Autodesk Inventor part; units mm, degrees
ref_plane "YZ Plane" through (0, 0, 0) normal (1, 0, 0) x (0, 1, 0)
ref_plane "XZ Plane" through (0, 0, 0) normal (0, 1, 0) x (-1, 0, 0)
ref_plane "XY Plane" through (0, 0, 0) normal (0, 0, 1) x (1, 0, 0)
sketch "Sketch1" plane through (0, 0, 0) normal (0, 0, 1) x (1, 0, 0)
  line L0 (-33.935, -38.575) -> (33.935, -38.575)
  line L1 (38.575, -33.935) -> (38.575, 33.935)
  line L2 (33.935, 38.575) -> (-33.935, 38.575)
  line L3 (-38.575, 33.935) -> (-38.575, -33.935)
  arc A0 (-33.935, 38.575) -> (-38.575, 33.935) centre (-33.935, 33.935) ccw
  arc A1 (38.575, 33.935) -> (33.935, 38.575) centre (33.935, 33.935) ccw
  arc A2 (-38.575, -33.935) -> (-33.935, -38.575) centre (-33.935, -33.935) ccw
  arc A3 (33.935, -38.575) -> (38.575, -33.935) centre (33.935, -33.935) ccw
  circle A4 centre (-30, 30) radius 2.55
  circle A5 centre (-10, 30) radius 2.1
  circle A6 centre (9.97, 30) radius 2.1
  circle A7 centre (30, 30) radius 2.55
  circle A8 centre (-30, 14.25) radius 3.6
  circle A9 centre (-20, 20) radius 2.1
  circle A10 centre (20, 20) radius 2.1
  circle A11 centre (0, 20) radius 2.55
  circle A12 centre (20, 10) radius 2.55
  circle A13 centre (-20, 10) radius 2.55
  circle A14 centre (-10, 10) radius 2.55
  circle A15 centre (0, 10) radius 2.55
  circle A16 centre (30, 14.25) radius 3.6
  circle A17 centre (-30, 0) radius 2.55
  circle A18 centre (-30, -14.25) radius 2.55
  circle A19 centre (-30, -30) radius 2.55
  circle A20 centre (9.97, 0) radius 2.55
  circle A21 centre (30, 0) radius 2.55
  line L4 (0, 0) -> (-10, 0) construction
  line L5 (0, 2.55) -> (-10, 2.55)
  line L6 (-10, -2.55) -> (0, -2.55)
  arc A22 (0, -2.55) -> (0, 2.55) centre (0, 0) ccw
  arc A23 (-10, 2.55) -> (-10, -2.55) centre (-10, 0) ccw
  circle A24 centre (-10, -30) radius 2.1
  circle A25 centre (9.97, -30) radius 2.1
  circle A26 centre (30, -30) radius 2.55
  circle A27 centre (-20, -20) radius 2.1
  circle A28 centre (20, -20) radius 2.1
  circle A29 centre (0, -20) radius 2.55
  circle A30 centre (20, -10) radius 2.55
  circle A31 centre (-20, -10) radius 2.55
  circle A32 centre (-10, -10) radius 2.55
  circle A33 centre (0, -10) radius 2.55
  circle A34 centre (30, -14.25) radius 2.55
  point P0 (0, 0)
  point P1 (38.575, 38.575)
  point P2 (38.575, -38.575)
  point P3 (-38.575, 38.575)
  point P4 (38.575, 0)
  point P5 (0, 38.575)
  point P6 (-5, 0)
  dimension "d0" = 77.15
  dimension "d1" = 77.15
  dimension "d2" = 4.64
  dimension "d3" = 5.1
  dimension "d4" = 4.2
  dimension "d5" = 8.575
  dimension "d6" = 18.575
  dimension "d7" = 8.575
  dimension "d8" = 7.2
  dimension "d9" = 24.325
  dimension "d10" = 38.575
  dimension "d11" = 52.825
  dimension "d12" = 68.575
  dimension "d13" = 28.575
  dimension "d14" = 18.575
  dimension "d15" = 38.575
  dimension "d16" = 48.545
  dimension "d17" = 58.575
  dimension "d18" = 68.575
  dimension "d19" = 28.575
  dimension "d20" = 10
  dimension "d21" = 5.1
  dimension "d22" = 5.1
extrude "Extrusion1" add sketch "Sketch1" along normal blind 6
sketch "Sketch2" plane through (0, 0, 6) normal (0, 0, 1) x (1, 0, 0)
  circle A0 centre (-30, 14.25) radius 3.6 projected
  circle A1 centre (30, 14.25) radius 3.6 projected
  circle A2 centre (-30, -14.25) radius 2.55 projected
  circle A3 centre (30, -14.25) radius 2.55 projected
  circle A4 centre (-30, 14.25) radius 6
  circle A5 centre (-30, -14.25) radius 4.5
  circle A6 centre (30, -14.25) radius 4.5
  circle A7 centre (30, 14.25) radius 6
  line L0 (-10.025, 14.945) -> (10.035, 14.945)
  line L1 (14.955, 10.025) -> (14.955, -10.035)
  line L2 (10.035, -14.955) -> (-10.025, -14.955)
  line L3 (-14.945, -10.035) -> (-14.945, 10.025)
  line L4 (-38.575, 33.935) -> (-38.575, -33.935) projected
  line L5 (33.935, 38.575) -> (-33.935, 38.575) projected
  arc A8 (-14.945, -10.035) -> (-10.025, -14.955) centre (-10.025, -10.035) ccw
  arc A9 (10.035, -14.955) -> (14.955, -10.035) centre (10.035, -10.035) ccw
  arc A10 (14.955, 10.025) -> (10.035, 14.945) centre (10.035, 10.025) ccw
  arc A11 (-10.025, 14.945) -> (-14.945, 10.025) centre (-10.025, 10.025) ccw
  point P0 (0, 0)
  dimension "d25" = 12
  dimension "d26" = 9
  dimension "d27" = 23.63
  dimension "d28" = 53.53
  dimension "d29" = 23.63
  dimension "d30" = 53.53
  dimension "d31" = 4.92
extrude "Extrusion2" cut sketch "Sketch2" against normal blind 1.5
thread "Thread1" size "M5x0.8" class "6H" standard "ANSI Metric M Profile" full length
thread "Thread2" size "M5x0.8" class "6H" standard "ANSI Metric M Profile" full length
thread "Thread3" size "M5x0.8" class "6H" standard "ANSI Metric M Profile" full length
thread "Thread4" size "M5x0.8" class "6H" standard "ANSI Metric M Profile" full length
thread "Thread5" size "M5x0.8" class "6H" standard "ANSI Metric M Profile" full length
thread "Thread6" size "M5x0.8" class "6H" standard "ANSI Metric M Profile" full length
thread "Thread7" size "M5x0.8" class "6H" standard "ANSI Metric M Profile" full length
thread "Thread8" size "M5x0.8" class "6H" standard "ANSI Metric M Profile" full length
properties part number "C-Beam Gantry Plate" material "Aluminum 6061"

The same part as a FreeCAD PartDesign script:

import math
import FreeCAD as App
import Part
import Sketcher
Q = App.Units.Quantity

doc = App.newDocument("Part")
params = doc.addObject("Spreadsheet::Sheet", "Params")
for row, (alias, value) in enumerate([
    ("sketch1_diameter", "5.1 mm"),
    ("sketch1_diameter2", "4.2 mm"),
    ("sketch1_diameter3", "7.2 mm"),
    ("sketch1_width", "10 mm"),
    ("sketch1_radius", "4.64 mm"),
    ("pad1_length", "6 mm"),
    ("sketch2_diameter", "12 mm"),
    ("sketch2_diameter2", "9 mm"),
    ("sketch2_radius", "4.92 mm"),
    ("sketch2_diameter3", "7.2 mm"),
    ("sketch2_diameter4", "5.1 mm"),
    ("pocket1_length", "1.5 mm"),
], start=1):
    params.set(f"A{row}", alias)
    params.set(f"B{row}", "=" + value)
    params.setAlias(f"B{row}", alias)

body = doc.addObject("PartDesign::Body", "Body")

# Sketch on XY plane
sketch1 = body.newObject("Sketcher::SketchObject", "Sketch")
sketch1.AttachmentSupport = (doc.getObject("XY_Plane"), [""])
sketch1.MapMode = "FlatFace"
sketch1.addGeometry(Part.ArcOfCircle(Part.Circle(App.Vector(-33.9, -33.9, 0), App.Vector(0, 0, 1), 4.6), math.radians(180), math.radians(270)), False)
sketch1.addGeometry(Part.LineSegment(App.Vector(-33.9, -38.6, 0), App.Vector(33.9, -38.6, 0)), False)
sketch1.addGeometry(Part.ArcOfCircle(Part.Circle(App.Vector(33.9, -33.9, 0), App.Vector(0, 0, 1), 4.6), math.radians(-90), math.radians(0)), False)
sketch1.addGeometry(Part.LineSegment(App.Vector(38.6, -33.9, 0), App.Vector(38.6, 33.9, 0)), False)
sketch1.addGeometry(Part.ArcOfCircle(Part.Circle(App.Vector(33.9, 33.9, 0), App.Vector(0, 0, 1), 4.6), math.radians(0), math.radians(90)), False)
sketch1.addGeometry(Part.LineSegment(App.Vector(33.9, 38.6, 0), App.Vector(-33.9, 38.6, 0)), False)
sketch1.addGeometry(Part.ArcOfCircle(Part.Circle(App.Vector(-33.9, 33.9, 0), App.Vector(0, 0, 1), 4.6), math.radians(90), math.radians(180)), False)
sketch1.addGeometry(Part.LineSegment(App.Vector(-38.6, 33.9, 0), App.Vector(-38.6, -33.9, 0)), False)
sketch1.addGeometry(Part.Circle(App.Vector(-30, -30, 0), App.Vector(0, 0, 1), 2.5), False)
sketch1.addGeometry(Part.Circle(App.Vector(-20, -20, 0), App.Vector(0, 0, 1), 2.1), False)
sketch1.addGeometry(Part.Circle(App.Vector(-10, -30, 0), App.Vector(0, 0, 1), 2.1), False)
sketch1.addGeometry(Part.Circle(App.Vector(-30, -14.2, 0), App.Vector(0, 0, 1), 2.5), False)
sketch1.addGeometry(Part.Circle(App.Vector(-20, -10, 0), App.Vector(0, 0, 1), 2.5), False)
sketch1.addGeometry(Part.Circle(App.Vector(-10, -10, 0), App.Vector(0, 0, 1), 2.5), False)
sketch1.addGeometry(Part.Circle(App.Vector(10, -30, 0), App.Vector(0, 0, 1), 2.1), False)
sketch1.addGeometry(Part.Circle(App.Vector(0, -20, 0), App.Vector(0, 0, 1), 2.5), False)
sketch1.addGeometry(Part.Circle(App.Vector(30, -30, 0), App.Vector(0, 0, 1), 2.5), False)
sketch1.addGeometry(Part.Circle(App.Vector(20, -20, 0), App.Vector(0, 0, 1), 2.1), False)
sketch1.addGeometry(Part.Circle(App.Vector(0, -10, 0), App.Vector(0, 0, 1), 2.5), False)
sketch1.addGeometry(Part.Circle(App.Vector(20, -10, 0), App.Vector(0, 0, 1), 2.5), False)
sketch1.addGeometry(Part.Circle(App.Vector(30, -14.2, 0), App.Vector(0, 0, 1), 2.5), False)
sketch1.addGeometry(Part.Circle(App.Vector(-30, 0, 0), App.Vector(0, 0, 1), 2.5), False)
sketch1.addGeometry(Part.Circle(App.Vector(-30, 14.2, 0), App.Vector(0, 0, 1), 3.6), False)
sketch1.addGeometry(Part.Circle(App.Vector(-20, 10, 0), App.Vector(0, 0, 1), 2.5), False)
sketch1.addGeometry(Part.LineSegment(App.Vector(-10, 2.5, 0), App.Vector(0, 2.5, 0)), False)
sketch1.addGeometry(Part.ArcOfCircle(Part.Circle(App.Vector(0, 0, 0), App.Vector(0, 0, 1), 2.5), math.radians(-90), math.radians(90)), False)
sketch1.addGeometry(Part.LineSegment(App.Vector(0, -2.5, 0), App.Vector(-10, -2.5, 0)), False)
sketch1.addGeometry(Part.ArcOfCircle(Part.Circle(App.Vector(-10, 0, 0), App.Vector(0, 0, 1), 2.5), math.radians(90), math.radians(270)), False)
sketch1.addGeometry(Part.Circle(App.Vector(-10, 10, 0), App.Vector(0, 0, 1), 2.5), False)
sketch1.addGeometry(Part.Circle(App.Vector(-20, 20, 0), App.Vector(0, 0, 1), 2.1), False)
sketch1.addGeometry(Part.Circle(App.Vector(-30, 30, 0), App.Vector(0, 0, 1), 2.5), False)
sketch1.addGeometry(Part.Circle(App.Vector(-10, 30, 0), App.Vector(0, 0, 1), 2.1), False)
sketch1.addGeometry(Part.Circle(App.Vector(10, 0, 0), App.Vector(0, 0, 1), 2.5), False)
sketch1.addGeometry(Part.Circle(App.Vector(0, 10, 0), App.Vector(0, 0, 1), 2.5), False)
sketch1.addGeometry(Part.Circle(App.Vector(30, 0, 0), App.Vector(0, 0, 1), 2.5), False)
sketch1.addGeometry(Part.Circle(App.Vector(20, 10, 0), App.Vector(0, 0, 1), 2.5), False)
sketch1.addGeometry(Part.Circle(App.Vector(30, 14.2, 0), App.Vector(0, 0, 1), 3.6), False)
sketch1.addGeometry(Part.Circle(App.Vector(0, 20, 0), App.Vector(0, 0, 1), 2.5), False)
sketch1.addGeometry(Part.Circle(App.Vector(10, 30, 0), App.Vector(0, 0, 1), 2.1), False)
sketch1.addGeometry(Part.Circle(App.Vector(20, 20, 0), App.Vector(0, 0, 1), 2.1), False)
sketch1.addGeometry(Part.Circle(App.Vector(30, 30, 0), App.Vector(0, 0, 1), 2.5), False)
sketch1.addConstraint(Sketcher.Constraint("Tangent", 0, 2, 1, 1))
sketch1.addConstraint(Sketcher.Constraint("Tangent", 1, 2, 2, 1))
sketch1.addConstraint(Sketcher.Constraint("Tangent", 2, 2, 3, 1))
sketch1.addConstraint(Sketcher.Constraint("Tangent", 3, 2, 4, 1))
sketch1.addConstraint(Sketcher.Constraint("Tangent", 4, 2, 5, 1))
sketch1.addConstraint(Sketcher.Constraint("Tangent", 5, 2, 6, 1))
sketch1.addConstraint(Sketcher.Constraint("Tangent", 6, 2, 7, 1))
sketch1.addConstraint(Sketcher.Constraint("Tangent", 7, 2, 0, 1))
sketch1.addConstraint(Sketcher.Constraint("Tangent", 24, 2, 25, 2))
sketch1.addConstraint(Sketcher.Constraint("Tangent", 25, 1, 26, 1))
sketch1.addConstraint(Sketcher.Constraint("Tangent", 26, 2, 27, 2))
sketch1.addConstraint(Sketcher.Constraint("Tangent", 27, 1, 24, 1))
sketch1.addConstraint(Sketcher.Constraint("Horizontal", 1))
sketch1.addConstraint(Sketcher.Constraint("Vertical", 3))
sketch1.addConstraint(Sketcher.Constraint("Horizontal", 5))
sketch1.addConstraint(Sketcher.Constraint("Vertical", 7))
sketch1.addConstraint(Sketcher.Constraint("Horizontal", 24))
sketch1.addConstraint(Sketcher.Constraint("Horizontal", 26))
sketch1.addConstraint(Sketcher.Constraint("Coincident", 25, 3, -1, 1))
sketch1.addConstraint(Sketcher.Constraint("Equal", 0, 2))
sketch1.addConstraint(Sketcher.Constraint("Equal", 2, 4))
sketch1.addConstraint(Sketcher.Constraint("Equal", 4, 6))
sketch1.addConstraint(Sketcher.Constraint("Equal", 9, 10))
sketch1.addConstraint(Sketcher.Constraint("Equal", 8, 11))
sketch1.addConstraint(Sketcher.Constraint("Equal", 11, 12))
sketch1.addConstraint(Sketcher.Constraint("Equal", 12, 13))
sketch1.addConstraint(Sketcher.Constraint("Equal", 10, 14))
sketch1.addConstraint(Sketcher.Constraint("Equal", 13, 15))
sketch1.addConstraint(Sketcher.Constraint("Equal", 15, 16))
sketch1.addConstraint(Sketcher.Constraint("Equal", 14, 17))
sketch1.addConstraint(Sketcher.Constraint("Equal", 16, 18))
sketch1.addConstraint(Sketcher.Constraint("Equal", 18, 19))
sketch1.addConstraint(Sketcher.Constraint("Equal", 19, 20))
sketch1.addConstraint(Sketcher.Constraint("Equal", 20, 21))
sketch1.addConstraint(Sketcher.Constraint("Equal", 21, 23))
sketch1.addConstraint(Sketcher.Constraint("Equal", 23, 25))
sketch1.addConstraint(Sketcher.Constraint("Equal", 27, 28))
sketch1.addConstraint(Sketcher.Constraint("Equal", 17, 29))
sketch1.addConstraint(Sketcher.Constraint("Equal", 28, 30))
sketch1.addConstraint(Sketcher.Constraint("Equal", 29, 31))
sketch1.addConstraint(Sketcher.Constraint("Equal", 30, 32))
sketch1.addConstraint(Sketcher.Constraint("Equal", 32, 33))
sketch1.addConstraint(Sketcher.Constraint("Equal", 33, 34))
sketch1.addConstraint(Sketcher.Constraint("Equal", 34, 35))
sketch1.addConstraint(Sketcher.Constraint("Equal", 22, 36))
sketch1.addConstraint(Sketcher.Constraint("Equal", 35, 37))
sketch1.addConstraint(Sketcher.Constraint("Equal", 31, 38))
sketch1.addConstraint(Sketcher.Constraint("Equal", 38, 39))
sketch1.addConstraint(Sketcher.Constraint("Equal", 37, 40))
sketch1.addConstraint(Sketcher.Constraint("Symmetric", 0, 3, 4, 3, -1, 1))
sketch1.addConstraint(Sketcher.Constraint("Symmetric", 20, 3, 22, 3, -1, 1))
sketch1.addConstraint(Sketcher.Constraint("Symmetric", 19, 3, 23, 3, -1, 1))
sketch1.addConstraint(Sketcher.Constraint("Symmetric", 17, 3, 29, 3, -1, 1))
sketch1.addConstraint(Sketcher.Constraint("Symmetric", 16, 3, 30, 3, -1, 1))
sketch1.addConstraint(Sketcher.Constraint("Symmetric", 18, 3, 33, 3, -1, 1))
sketch1.addConstraint(Sketcher.Constraint("Symmetric", 21, 3, 34, 3, -1, 1))
sketch1.addConstraint(Sketcher.Constraint("Symmetric", 12, 3, 35, 3, -1, 1))
sketch1.addConstraint(Sketcher.Constraint("Symmetric", 11, 3, 36, 3, -1, 1))
sketch1.addConstraint(Sketcher.Constraint("Symmetric", 15, 3, 37, 3, -1, 1))
sketch1.addConstraint(Sketcher.Constraint("Symmetric", 9, 3, 39, 3, -1, 1))
sketch1.addConstraint(Sketcher.Constraint("Symmetric", 8, 3, 40, 3, -1, 1))
sketch1.addConstraint(Sketcher.Constraint("Symmetric", 8, 3, 16, 3, -2))
sketch1.addConstraint(Sketcher.Constraint("Symmetric", 9, 3, 17, 3, -2))
sketch1.addConstraint(Sketcher.Constraint("Symmetric", 12, 3, 19, 3, -2))
sketch1.addConstraint(Sketcher.Constraint("Symmetric", 11, 3, 20, 3, -2))
sketch1.addConstraint(Sketcher.Constraint("Symmetric", 13, 3, 28, 3, -1))
sketch1.addConstraint(Sketcher.Constraint("Symmetric", 10, 3, 31, 3, -1))
sketch1.addConstraint(Sketcher.Constraint("Symmetric", 14, 3, 38, 3, -1))
sketch1.addConstraint(Sketcher.Constraint("PointOnObject", 15, 3, -2))
sketch1.addConstraint(Sketcher.Constraint("PointOnObject", 18, 3, -2))
sketch1.addConstraint(Sketcher.Constraint("PointOnObject", 21, 3, -1))
sketch1.addConstraint(Sketcher.Constraint("PointOnObject", 32, 3, -1))
sketch1.addConstraint(Sketcher.Constraint("Horizontal", 8, 3, 10, 3))
sketch1.addConstraint(Sketcher.Constraint("Horizontal", 12, 3, 13, 3))
sketch1.addConstraint(Sketcher.Constraint("Horizontal", 10, 3, 14, 3))
sketch1.addConstraint(Sketcher.Constraint("Horizontal", 9, 3, 15, 3))
sketch1.addConstraint(Sketcher.Constraint("Horizontal", 13, 3, 18, 3))
sketch1.addConstraint(Sketcher.Constraint("Vertical", 8, 3, 11, 3))
sketch1.addConstraint(Sketcher.Constraint("Vertical", 9, 3, 12, 3))
sketch1.addConstraint(Sketcher.Constraint("Vertical", 10, 3, 13, 3))
sketch1.addConstraint(Sketcher.Constraint("Vertical", 11, 3, 21, 3))
sketch1.addConstraint(Sketcher.Constraint("Vertical", 13, 3, 27, 3))
sketch1.addConstraint(Sketcher.Constraint("Vertical", 14, 3, 32, 3))
sketch1.addConstraint(Sketcher.Constraint("Equal", 5, 3))
sketch1.addConstraint(Sketcher.Constraint("Diameter", 8, Q("5.1 mm")))
sketch1.addConstraint(Sketcher.Constraint("Diameter", 9, Q("4.2 mm")))
sketch1.addConstraint(Sketcher.Constraint("Diameter", 22, Q("7.2 mm")))
sketch1.addConstraint(Sketcher.Constraint("DistanceX", 24, 1, 24, 2, Q("10 mm")))
sketch1.addConstraint(Sketcher.Constraint("Radius", 0, Q("4.64 mm")))
sketch1.addConstraint(Sketcher.Constraint("DistanceY", 12, 3, -1, 1, Q("10 mm")))
sketch1.addConstraint(Sketcher.Constraint("DistanceX", 8, 3, 9, 3, Q("10 mm")))
sketch1.addConstraint(Sketcher.Constraint("DistanceY", 8, 3, 9, 3, Q("10 mm")))
sketch1.addConstraint(Sketcher.Constraint("DistanceX", 9, 3, 10, 3, Q("10 mm")))
sketch1.addConstraint(Sketcher.Constraint("DistanceY", 9, 3, 12, 3, Q("10 mm")))
sketch1.addConstraint(Sketcher.Constraint("DistanceY", 0, 2, -1, 1, Q("38.575 mm")))
sketch1.addConstraint(Sketcher.Constraint("DistanceY", 0, 2, 11, 3, Q("24.325 mm")))
sketch1.addConstraint(Sketcher.Constraint("DistanceX", -1, 1, 14, 3, Q("9.97 mm")))
sketch1.setExpression("Constraints[84]", "Params.sketch1_diameter")
sketch1.setExpression("Constraints[85]", "Params.sketch1_diameter2")
sketch1.setExpression("Constraints[86]", "Params.sketch1_diameter3")
sketch1.setExpression("Constraints[87]", "Params.sketch1_width")
sketch1.setExpression("Constraints[88]", "Params.sketch1_radius")
pad1 = body.newObject("PartDesign::Pad", "Pad")
pad1.Profile = sketch1
pad1.setExpression("Length", "Params.pad1_length")

# Sketch on XY plane
sketch2 = body.newObject("Sketcher::SketchObject", "Sketch001")
sketch2.AttachmentSupport = (doc.getObject("XY_Plane"), [""])
sketch2.MapMode = "FlatFace"
sketch2.AttachmentOffset = App.Placement(App.Vector(0, 0, 6), App.Rotation())
sketch2.addGeometry(Part.Circle(App.Vector(-30, 14.2, 0), App.Vector(0, 0, 1), 6), False)
sketch2.addGeometry(Part.Circle(App.Vector(-30, 14.2, 0), App.Vector(0, 0, 1), 3.6), False)
sketch2.addGeometry(Part.Circle(App.Vector(-30, -14.2, 0), App.Vector(0, 0, 1), 4.5), False)
sketch2.addGeometry(Part.Circle(App.Vector(-30, -14.2, 0), App.Vector(0, 0, 1), 2.5), False)
sketch2.addGeometry(Part.Circle(App.Vector(30, -14.2, 0), App.Vector(0, 0, 1), 4.5), False)
sketch2.addGeometry(Part.Circle(App.Vector(30, -14.2, 0), App.Vector(0, 0, 1), 2.5), False)
sketch2.addGeometry(Part.Circle(App.Vector(30, 14.2, 0), App.Vector(0, 0, 1), 6), False)
sketch2.addGeometry(Part.Circle(App.Vector(30, 14.2, 0), App.Vector(0, 0, 1), 3.6), False)
sketch2.addGeometry(Part.LineSegment(App.Vector(10, 14.9, 0), App.Vector(-10, 14.9, 0)), False)
sketch2.addGeometry(Part.ArcOfCircle(Part.Circle(App.Vector(-10, 10, 0), App.Vector(0, 0, 1), 4.9), math.radians(90), math.radians(180)), False)
sketch2.addGeometry(Part.LineSegment(App.Vector(-14.9, 10, 0), App.Vector(-14.9, -10, 0)), False)
sketch2.addGeometry(Part.ArcOfCircle(Part.Circle(App.Vector(-10, -10, 0), App.Vector(0, 0, 1), 4.9), math.radians(180), math.radians(270)), False)
sketch2.addGeometry(Part.LineSegment(App.Vector(-10, -15, 0), App.Vector(10, -15, 0)), False)
sketch2.addGeometry(Part.ArcOfCircle(Part.Circle(App.Vector(10, -10, 0), App.Vector(0, 0, 1), 4.9), math.radians(-90), math.radians(0)), False)
sketch2.addGeometry(Part.LineSegment(App.Vector(15, -10, 0), App.Vector(15, 10, 0)), False)
sketch2.addGeometry(Part.ArcOfCircle(Part.Circle(App.Vector(10, 10, 0), App.Vector(0, 0, 1), 4.9), math.radians(0), math.radians(90)), False)
sketch2.addConstraint(Sketcher.Constraint("Tangent", 8, 2, 9, 1))
sketch2.addConstraint(Sketcher.Constraint("Tangent", 9, 2, 10, 1))
sketch2.addConstraint(Sketcher.Constraint("Tangent", 10, 2, 11, 1))
sketch2.addConstraint(Sketcher.Constraint("Tangent", 11, 2, 12, 1))
sketch2.addConstraint(Sketcher.Constraint("Tangent", 12, 2, 13, 1))
sketch2.addConstraint(Sketcher.Constraint("Tangent", 13, 2, 14, 1))
sketch2.addConstraint(Sketcher.Constraint("Tangent", 14, 2, 15, 1))
sketch2.addConstraint(Sketcher.Constraint("Tangent", 15, 2, 8, 1))
sketch2.addConstraint(Sketcher.Constraint("Horizontal", 8))
sketch2.addConstraint(Sketcher.Constraint("Vertical", 10))
sketch2.addConstraint(Sketcher.Constraint("Horizontal", 12))
sketch2.addConstraint(Sketcher.Constraint("Vertical", 14))
sketch2.addConstraint(Sketcher.Constraint("Coincident", 1, 3, 0, 3))
sketch2.addConstraint(Sketcher.Constraint("Coincident", 3, 3, 2, 3))
sketch2.addConstraint(Sketcher.Constraint("Coincident", 5, 3, 4, 3))
sketch2.addConstraint(Sketcher.Constraint("Coincident", 7, 3, 6, 3))
sketch2.addConstraint(Sketcher.Constraint("Equal", 2, 4))
sketch2.addConstraint(Sketcher.Constraint("Equal", 3, 5))
sketch2.addConstraint(Sketcher.Constraint("Equal", 0, 6))
sketch2.addConstraint(Sketcher.Constraint("Equal", 1, 7))
sketch2.addConstraint(Sketcher.Constraint("Equal", 9, 11))
sketch2.addConstraint(Sketcher.Constraint("Equal", 11, 13))
sketch2.addConstraint(Sketcher.Constraint("Equal", 13, 15))
sketch2.addConstraint(Sketcher.Constraint("Symmetric", 0, 3, 4, 3, -1, 1))
sketch2.addConstraint(Sketcher.Constraint("Symmetric", 2, 3, 6, 3, -1, 1))
sketch2.addConstraint(Sketcher.Constraint("Symmetric", 2, 3, 4, 3, -2))
sketch2.addConstraint(Sketcher.Constraint("Equal", 12, 10))
sketch2.addConstraint(Sketcher.Constraint("Diameter", 0, Q("12 mm")))
sketch2.addConstraint(Sketcher.Constraint("Diameter", 2, Q("9 mm")))
sketch2.addConstraint(Sketcher.Constraint("Radius", 9, Q("4.92 mm")))
sketch2.addConstraint(Sketcher.Constraint("Diameter", 1, Q("7.2 mm")))
sketch2.addConstraint(Sketcher.Constraint("Diameter", 3, Q("5.1 mm")))
sketch2.addConstraint(Sketcher.Constraint("DistanceX", 0, 3, -1, 1, Q("30 mm")))
sketch2.addConstraint(Sketcher.Constraint("DistanceX", 8, 2, 8, 1, Q("20.06 mm")))
sketch2.addConstraint(Sketcher.Constraint("DistanceY", 2, 3, 0, 3, Q("28.5 mm")))
sketch2.addConstraint(Sketcher.Constraint("DistanceX", 9, 3, -1, 1, Q("10.025 mm")))
sketch2.addConstraint(Sketcher.Constraint("DistanceY", -1, 1, 9, 3, Q("10.025 mm")))
sketch2.setExpression("Constraints[27]", "Params.sketch2_diameter")
sketch2.setExpression("Constraints[28]", "Params.sketch2_diameter2")
sketch2.setExpression("Constraints[29]", "Params.sketch2_radius")
sketch2.setExpression("Constraints[30]", "Params.sketch2_diameter3")
sketch2.setExpression("Constraints[31]", "Params.sketch2_diameter4")
pocket1 = body.newObject("PartDesign::Pocket", "Pocket")
pocket1.Profile = sketch2
pocket1.setExpression("Length", "Params.pocket1_length")

doc.recompute()
